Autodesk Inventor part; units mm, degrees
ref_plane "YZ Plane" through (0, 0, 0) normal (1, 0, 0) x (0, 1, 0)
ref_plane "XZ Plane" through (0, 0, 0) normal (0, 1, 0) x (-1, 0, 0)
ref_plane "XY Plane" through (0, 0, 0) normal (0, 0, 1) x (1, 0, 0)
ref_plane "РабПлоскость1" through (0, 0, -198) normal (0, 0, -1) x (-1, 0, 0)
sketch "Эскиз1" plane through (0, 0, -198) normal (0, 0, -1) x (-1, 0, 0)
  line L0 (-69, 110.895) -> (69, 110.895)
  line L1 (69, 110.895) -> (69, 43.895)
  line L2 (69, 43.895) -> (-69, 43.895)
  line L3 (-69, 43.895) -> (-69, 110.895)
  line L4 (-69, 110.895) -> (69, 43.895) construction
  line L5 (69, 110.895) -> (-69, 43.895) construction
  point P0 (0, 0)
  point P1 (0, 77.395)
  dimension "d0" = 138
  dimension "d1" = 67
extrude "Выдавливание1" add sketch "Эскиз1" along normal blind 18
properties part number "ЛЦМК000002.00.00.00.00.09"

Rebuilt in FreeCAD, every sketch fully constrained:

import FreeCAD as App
import Part
import Sketcher
Q = App.Units.Quantity


def add_polygon(sketch, points):
    """Adds a closed chain of lines whose ends are joined by coincident constraints."""
    first, n = sketch.GeometryCount, len(points)
    for a, b in zip(points, points[1:] + points[:1]):
        sketch.addGeometry(Part.LineSegment(App.Vector(*a, 0), App.Vector(*b, 0)), False)
    for i in range(n):
        sketch.addConstraint(Sketcher.Constraint("Coincident", first + i, 2, first + (i + 1) % n, 1))

doc = App.newDocument("Part")
params = doc.addObject("Spreadsheet::Sheet", "Params")
for row, (alias, value) in enumerate([
    ("sketch1_width", "138 mm"),
    ("sketch1_height", "67 mm"),
    ("pad1_length", "18 mm"),
], start=1):
    params.set(f"A{row}", alias)
    params.set(f"B{row}", "=" + value)
    params.setAlias(f"B{row}", alias)

body = doc.addObject("PartDesign::Body", "Body")

sketch1 = body.newObject("Sketcher::SketchObject", "Sketch")
sketch1.AttachmentSupport = (doc.getObject("XY_Plane"), [""])
sketch1.MapMode = "FlatFace"
sketch1.AttachmentOffset = App.Placement(App.Vector(0, 0, -198), App.Rotation())
add_polygon(sketch1, [(-69, 111), (69, 111), (69, 44), (-69, 44)])
sketch1.addConstraint(Sketcher.Constraint("Horizontal", 0))
sketch1.addConstraint(Sketcher.Constraint("Vertical", 1))
sketch1.addConstraint(Sketcher.Constraint("Horizontal", 2))
sketch1.addConstraint(Sketcher.Constraint("Vertical", 3))
sketch1.addConstraint(Sketcher.Constraint("DistanceX", 0, 1, 0, 2, Q("138 mm")))
sketch1.addConstraint(Sketcher.Constraint("DistanceY", 1, 2, 1, 1, Q("67 mm")))
sketch1.addConstraint(Sketcher.Constraint("DistanceX", -1, 1, 0, 2, Q("69 mm")))
sketch1.addConstraint(Sketcher.Constraint("DistanceY", -1, 1, 0, 2, Q("110.895 mm")))
sketch1.setExpression("Constraints[8]", "Params.sketch1_width")
sketch1.setExpression("Constraints[9]", "Params.sketch1_height")
pad1 = body.newObject("PartDesign::Pad", "Pad")
pad1.Profile = sketch1
pad1.setExpression("Length", "Params.pad1_length")
pad1.Reversed = True

doc.recompute()
